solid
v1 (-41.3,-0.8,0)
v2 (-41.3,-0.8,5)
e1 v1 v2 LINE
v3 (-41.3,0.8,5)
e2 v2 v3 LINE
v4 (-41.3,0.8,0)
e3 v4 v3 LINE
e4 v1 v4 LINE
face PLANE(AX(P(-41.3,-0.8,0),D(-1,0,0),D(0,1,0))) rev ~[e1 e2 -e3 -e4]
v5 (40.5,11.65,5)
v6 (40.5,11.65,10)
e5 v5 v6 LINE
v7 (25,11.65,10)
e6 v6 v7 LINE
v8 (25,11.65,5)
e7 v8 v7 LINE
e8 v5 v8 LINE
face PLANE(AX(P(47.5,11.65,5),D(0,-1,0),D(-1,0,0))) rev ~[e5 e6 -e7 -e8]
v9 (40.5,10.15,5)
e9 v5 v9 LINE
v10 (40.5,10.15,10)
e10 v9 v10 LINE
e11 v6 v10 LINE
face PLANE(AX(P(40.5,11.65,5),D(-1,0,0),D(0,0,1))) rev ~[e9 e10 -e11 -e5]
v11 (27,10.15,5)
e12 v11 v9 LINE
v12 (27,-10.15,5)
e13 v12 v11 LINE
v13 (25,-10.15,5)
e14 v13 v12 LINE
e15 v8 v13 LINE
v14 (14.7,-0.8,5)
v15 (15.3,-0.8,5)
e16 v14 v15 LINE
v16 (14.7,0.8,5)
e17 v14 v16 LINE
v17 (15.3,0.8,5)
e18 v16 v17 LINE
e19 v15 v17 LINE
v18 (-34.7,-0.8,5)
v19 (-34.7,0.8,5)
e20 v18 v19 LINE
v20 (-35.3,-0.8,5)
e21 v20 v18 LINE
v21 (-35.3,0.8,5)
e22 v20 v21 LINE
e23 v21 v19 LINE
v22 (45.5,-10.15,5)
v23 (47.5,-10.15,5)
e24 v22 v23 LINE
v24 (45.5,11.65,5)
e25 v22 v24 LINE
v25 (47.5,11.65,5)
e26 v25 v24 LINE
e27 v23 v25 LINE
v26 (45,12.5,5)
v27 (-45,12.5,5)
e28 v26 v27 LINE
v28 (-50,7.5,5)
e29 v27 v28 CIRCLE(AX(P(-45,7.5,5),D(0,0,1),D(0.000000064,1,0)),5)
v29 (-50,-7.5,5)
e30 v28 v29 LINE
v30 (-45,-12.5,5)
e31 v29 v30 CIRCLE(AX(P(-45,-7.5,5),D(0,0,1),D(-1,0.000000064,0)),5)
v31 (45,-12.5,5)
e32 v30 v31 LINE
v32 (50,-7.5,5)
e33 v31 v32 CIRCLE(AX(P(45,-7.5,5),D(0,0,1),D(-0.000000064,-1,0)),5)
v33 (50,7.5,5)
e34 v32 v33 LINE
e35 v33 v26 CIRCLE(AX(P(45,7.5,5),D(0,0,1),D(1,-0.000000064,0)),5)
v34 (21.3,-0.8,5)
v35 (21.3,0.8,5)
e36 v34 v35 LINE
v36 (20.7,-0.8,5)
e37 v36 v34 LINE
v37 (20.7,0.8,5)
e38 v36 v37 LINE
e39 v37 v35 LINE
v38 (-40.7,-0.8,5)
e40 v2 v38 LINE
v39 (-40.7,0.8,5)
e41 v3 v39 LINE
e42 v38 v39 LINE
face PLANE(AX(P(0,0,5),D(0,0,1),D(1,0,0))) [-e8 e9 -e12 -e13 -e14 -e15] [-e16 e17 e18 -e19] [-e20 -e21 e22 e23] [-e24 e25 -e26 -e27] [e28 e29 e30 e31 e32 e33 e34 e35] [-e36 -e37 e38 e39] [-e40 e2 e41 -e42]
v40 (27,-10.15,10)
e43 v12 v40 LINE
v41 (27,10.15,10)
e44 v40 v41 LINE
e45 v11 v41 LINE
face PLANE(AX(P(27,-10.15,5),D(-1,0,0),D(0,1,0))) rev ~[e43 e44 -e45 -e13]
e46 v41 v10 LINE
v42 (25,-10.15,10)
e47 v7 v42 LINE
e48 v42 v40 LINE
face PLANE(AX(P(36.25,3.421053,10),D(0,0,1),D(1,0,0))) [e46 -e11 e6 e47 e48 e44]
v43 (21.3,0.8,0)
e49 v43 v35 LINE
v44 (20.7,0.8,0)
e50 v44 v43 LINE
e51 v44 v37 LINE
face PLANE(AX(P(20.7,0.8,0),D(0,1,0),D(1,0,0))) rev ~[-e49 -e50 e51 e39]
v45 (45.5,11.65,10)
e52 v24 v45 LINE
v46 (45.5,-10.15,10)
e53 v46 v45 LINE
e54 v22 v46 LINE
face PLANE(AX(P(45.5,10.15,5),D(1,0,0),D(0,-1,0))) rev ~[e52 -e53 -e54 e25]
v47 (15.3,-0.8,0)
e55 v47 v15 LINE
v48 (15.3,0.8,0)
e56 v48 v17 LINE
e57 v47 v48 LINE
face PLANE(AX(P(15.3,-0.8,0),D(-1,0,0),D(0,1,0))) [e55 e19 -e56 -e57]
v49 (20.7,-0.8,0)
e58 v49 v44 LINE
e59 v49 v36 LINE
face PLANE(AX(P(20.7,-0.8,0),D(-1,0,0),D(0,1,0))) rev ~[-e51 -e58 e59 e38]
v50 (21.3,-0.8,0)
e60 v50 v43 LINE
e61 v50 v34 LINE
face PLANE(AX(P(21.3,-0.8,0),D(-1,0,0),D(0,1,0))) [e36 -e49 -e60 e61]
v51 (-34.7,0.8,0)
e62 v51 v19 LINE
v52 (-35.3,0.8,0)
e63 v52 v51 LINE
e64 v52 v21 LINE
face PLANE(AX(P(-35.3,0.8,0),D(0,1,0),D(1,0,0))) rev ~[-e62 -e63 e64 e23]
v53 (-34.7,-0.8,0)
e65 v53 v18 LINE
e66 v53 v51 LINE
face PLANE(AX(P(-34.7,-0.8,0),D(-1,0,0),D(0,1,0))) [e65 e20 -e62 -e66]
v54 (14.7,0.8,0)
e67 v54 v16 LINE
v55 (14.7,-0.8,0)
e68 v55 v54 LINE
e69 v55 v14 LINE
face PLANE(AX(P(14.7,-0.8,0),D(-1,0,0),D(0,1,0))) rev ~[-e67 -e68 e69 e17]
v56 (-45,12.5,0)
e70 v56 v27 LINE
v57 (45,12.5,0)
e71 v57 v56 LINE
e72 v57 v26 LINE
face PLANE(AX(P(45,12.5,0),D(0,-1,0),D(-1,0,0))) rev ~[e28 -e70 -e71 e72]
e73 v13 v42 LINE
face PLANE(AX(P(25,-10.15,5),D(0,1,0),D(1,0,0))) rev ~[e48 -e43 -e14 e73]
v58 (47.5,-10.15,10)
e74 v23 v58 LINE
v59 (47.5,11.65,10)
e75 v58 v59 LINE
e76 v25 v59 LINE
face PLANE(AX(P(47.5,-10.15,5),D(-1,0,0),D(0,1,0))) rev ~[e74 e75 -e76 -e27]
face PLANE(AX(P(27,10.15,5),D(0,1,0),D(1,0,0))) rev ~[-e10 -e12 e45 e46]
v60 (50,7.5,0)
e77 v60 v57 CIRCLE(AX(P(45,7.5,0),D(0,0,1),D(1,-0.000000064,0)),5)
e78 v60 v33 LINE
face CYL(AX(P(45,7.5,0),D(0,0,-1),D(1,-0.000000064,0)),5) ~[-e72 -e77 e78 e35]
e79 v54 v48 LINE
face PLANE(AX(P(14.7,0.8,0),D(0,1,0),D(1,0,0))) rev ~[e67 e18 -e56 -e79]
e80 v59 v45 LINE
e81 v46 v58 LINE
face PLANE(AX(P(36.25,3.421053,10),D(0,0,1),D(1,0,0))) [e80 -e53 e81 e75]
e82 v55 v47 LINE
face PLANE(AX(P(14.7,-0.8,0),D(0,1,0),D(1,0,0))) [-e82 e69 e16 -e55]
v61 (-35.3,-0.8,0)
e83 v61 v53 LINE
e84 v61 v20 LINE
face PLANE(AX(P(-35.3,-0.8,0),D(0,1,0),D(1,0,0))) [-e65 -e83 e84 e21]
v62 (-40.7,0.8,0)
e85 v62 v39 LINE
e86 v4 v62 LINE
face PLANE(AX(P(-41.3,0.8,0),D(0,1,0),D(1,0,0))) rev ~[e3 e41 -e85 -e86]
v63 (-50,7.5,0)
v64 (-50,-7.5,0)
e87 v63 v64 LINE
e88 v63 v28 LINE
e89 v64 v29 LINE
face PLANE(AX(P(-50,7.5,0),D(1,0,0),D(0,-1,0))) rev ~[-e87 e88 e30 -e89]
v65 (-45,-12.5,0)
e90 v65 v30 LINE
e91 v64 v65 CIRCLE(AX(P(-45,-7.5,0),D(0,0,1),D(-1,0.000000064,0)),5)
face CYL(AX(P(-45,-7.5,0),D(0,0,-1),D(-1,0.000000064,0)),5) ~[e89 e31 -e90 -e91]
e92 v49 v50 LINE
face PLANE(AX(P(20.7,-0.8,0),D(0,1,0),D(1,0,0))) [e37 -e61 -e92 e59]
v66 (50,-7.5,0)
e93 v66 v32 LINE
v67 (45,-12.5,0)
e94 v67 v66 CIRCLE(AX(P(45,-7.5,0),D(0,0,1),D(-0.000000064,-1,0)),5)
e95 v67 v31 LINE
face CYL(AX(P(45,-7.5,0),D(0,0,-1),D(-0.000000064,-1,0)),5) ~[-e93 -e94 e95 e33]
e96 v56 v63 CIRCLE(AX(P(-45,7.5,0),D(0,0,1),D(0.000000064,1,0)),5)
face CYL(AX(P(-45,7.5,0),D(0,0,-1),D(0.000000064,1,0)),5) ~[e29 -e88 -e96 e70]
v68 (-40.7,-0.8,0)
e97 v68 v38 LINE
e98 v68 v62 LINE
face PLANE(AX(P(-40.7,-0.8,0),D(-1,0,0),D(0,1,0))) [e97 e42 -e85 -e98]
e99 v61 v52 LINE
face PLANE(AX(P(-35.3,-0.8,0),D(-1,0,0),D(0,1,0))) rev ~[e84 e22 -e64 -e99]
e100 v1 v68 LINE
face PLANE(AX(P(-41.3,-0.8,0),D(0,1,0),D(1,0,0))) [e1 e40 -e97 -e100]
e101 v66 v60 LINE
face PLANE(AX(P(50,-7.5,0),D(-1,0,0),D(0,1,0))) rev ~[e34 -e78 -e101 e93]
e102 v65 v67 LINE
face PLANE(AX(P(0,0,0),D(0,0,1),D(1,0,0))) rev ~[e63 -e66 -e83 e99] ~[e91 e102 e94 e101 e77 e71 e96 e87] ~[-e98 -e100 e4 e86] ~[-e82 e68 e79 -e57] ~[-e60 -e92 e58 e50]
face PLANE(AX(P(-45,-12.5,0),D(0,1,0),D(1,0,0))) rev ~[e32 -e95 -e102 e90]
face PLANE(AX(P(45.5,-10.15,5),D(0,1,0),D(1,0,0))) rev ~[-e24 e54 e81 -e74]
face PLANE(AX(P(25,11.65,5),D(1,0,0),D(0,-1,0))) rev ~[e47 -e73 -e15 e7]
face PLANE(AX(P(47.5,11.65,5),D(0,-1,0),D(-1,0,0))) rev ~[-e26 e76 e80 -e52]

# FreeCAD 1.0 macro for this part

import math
import FreeCAD as App
import Part
import Sketcher
Q = App.Units.Quantity

doc = App.newDocument("Part")
body = doc.addObject("PartDesign::Body", "Body")

sketch1 = body.newObject("Sketcher::SketchObject", "Sketch")
sketch1.AttachmentSupport = (doc.getObject("XY_Plane"), [""])
sketch1.MapMode = "FlatFace"
sketch1.addGeometry(Part.ArcOfCircle(Part.Circle(App.Vector(45, 7.5, 0), App.Vector(0, 0, 1), 5), math.radians(0), math.radians(90)), False)
sketch1.addGeometry(Part.LineSegment(App.Vector(45, 12.5, 0), App.Vector(-45, 12.5, 0)), False)
sketch1.addGeometry(Part.ArcOfCircle(Part.Circle(App.Vector(-45, 7.5, 0), App.Vector(0, 0, 1), 5), math.radians(90), math.radians(180)), False)
sketch1.addGeometry(Part.LineSegment(App.Vector(-50, 7.5, 0), App.Vector(-50, -7.5, 0)), False)
sketch1.addGeometry(Part.ArcOfCircle(Part.Circle(App.Vector(-45, -7.5, 0), App.Vector(0, 0, 1), 5), math.radians(180), math.radians(270)), False)
sketch1.addGeometry(Part.LineSegment(App.Vector(-45, -12.5, 0), App.Vector(45, -12.5, 0)), False)
sketch1.addGeometry(Part.ArcOfCircle(Part.Circle(App.Vector(45, -7.5, 0), App.Vector(0, 0, 1), 5), math.radians(-90), math.radians(0)), False)
sketch1.addGeometry(Part.LineSegment(App.Vector(50, -7.5, 0), App.Vector(50, 7.5, 0)), False)
sketch1.addGeometry(Part.LineSegment(App.Vector(-40.7, -0.8, 0), App.Vector(-41.3, -0.8, 0)), False)
sketch1.addGeometry(Part.LineSegment(App.Vector(-41.3, -0.8, 0), App.Vector(-41.3, 0.8, 0)), False)
sketch1.addGeometry(Part.LineSegment(App.Vector(-41.3, 0.8, 0), App.Vector(-40.7, 0.8, 0)), False)
sketch1.addGeometry(Part.LineSegment(App.Vector(-40.7, 0.8, 0), App.Vector(-40.7, -0.8, 0)), False)
sketch1.addGeometry(Part.LineSegment(App.Vector(-34.7, -0.8, 0), App.Vector(-35.3, -0.8, 0)), False)
sketch1.addGeometry(Part.LineSegment(App.Vector(-35.3, -0.8, 0), App.Vector(-35.3, 0.8, 0)), False)
sketch1.addGeometry(Part.LineSegment(App.Vector(-35.3, 0.8, 0), App.Vector(-34.7, 0.8, 0)), False)
sketch1.addGeometry(Part.LineSegment(App.Vector(-34.7, 0.8, 0), App.Vector(-34.7, -0.8, 0)), False)
sketch1.addGeometry(Part.LineSegment(App.Vector(15.3, -0.8, 0), App.Vector(14.7, -0.8, 0)), False)
sketch1.addGeometry(Part.LineSegment(App.Vector(14.7, -0.8, 0), App.Vector(14.7, 0.8, 0)), False)
sketch1.addGeometry(Part.LineSegment(App.Vector(14.7, 0.8, 0), App.Vector(15.3, 0.8, 0)), False)
sketch1.addGeometry(Part.LineSegment(App.Vector(15.3, 0.8, 0), App.Vector(15.3, -0.8, 0)), False)
sketch1.addGeometry(Part.LineSegment(App.Vector(21.3, -0.8, 0), App.Vector(20.7, -0.8, 0)), False)
sketch1.addGeometry(Part.LineSegment(App.Vector(20.7, -0.8, 0), App.Vector(20.7, 0.8, 0)), False)
sketch1.addGeometry(Part.LineSegment(App.Vector(20.7, 0.8, 0), App.Vector(21.3, 0.8, 0)), False)
sketch1.addGeometry(Part.LineSegment(App.Vector(21.3, 0.8, 0), App.Vector(21.3, -0.8, 0)), False)
sketch1.addConstraint(Sketcher.Constraint("Tangent", 0, 2, 1, 1))
sketch1.addConstraint(Sketcher.Constraint("Tangent", 1, 2, 2, 1))
sketch1.addConstraint(Sketcher.Constraint("Tangent", 2, 2, 3, 1))
sketch1.addConstraint(Sketcher.Constraint("Tangent", 3, 2, 4, 1))
sketch1.addConstraint(Sketcher.Constraint("Tangent", 4, 2, 5, 1))
sketch1.addConstraint(Sketcher.Constraint("Tangent", 5, 2, 6, 1))
sketch1.addConstraint(Sketcher.Constraint("Tangent", 6, 2, 7, 1))
sketch1.addConstraint(Sketcher.Constraint("Tangent", 7, 2, 0, 1))
sketch1.addConstraint(Sketcher.Constraint("Coincident", 8, 2, 9, 1))
sketch1.addConstraint(Sketcher.Constraint("Coincident", 9, 2, 10, 1))
sketch1.addConstraint(Sketcher.Constraint("Coincident", 10, 2, 11, 1))
sketch1.addConstraint(Sketcher.Constraint("Coincident", 11, 2, 8, 1))
sketch1.addConstraint(Sketcher.Constraint("Coincident", 12, 2, 13, 1))
sketch1.addConstraint(Sketcher.Constraint("Coincident", 13, 2, 14, 1))
sketch1.addConstraint(Sketcher.Constraint("Coincident", 14, 2, 15, 1))
sketch1.addConstraint(Sketcher.Constraint("Coincident", 15, 2, 12, 1))
sketch1.addConstraint(Sketcher.Constraint("Coincident", 16, 2, 17, 1))
sketch1.addConstraint(Sketcher.Constraint("Coincident", 17, 2, 18, 1))
sketch1.addConstraint(Sketcher.Constraint("Coincident", 18, 2, 19, 1))
sketch1.addConstraint(Sketcher.Constraint("Coincident", 19, 2, 16, 1))
sketch1.addConstraint(Sketcher.Constraint("Coincident", 20, 2, 21, 1))
sketch1.addConstraint(Sketcher.Constraint("Coincident", 21, 2, 22, 1))
sketch1.addConstraint(Sketcher.Constraint("Coincident", 22, 2, 23, 1))
sketch1.addConstraint(Sketcher.Constraint("Coincident", 23, 2, 20, 1))
sketch1.addConstraint(Sketcher.Constraint("Horizontal", 1))
sketch1.addConstraint(Sketcher.Constraint("Vertical", 3))
sketch1.addConstraint(Sketcher.Constraint("Horizontal", 5))
sketch1.addConstraint(Sketcher.Constraint("Vertical", 7))
sketch1.addConstraint(Sketcher.Constraint("Horizontal", 8))
sketch1.addConstraint(Sketcher.Constraint("Vertical", 9))
sketch1.addConstraint(Sketcher.Constraint("Horizontal", 10))
sketch1.addConstraint(Sketcher.Constraint("Vertical", 11))
sketch1.addConstraint(Sketcher.Constraint("Horizontal", 12))
sketch1.addConstraint(Sketcher.Constraint("Vertical", 13))
sketch1.addConstraint(Sketcher.Constraint("Horizontal", 14))
sketch1.addConstraint(Sketcher.Constraint("Vertical", 15))
sketch1.addConstraint(Sketcher.Constraint("Horizontal", 16))
sketch1.addConstraint(Sketcher.Constraint("Vertical", 17))
sketch1.addConstraint(Sketcher.Constraint("Horizontal", 18))
sketch1.addConstraint(Sketcher.Constraint("Vertical", 19))
sketch1.addConstraint(Sketcher.Constraint("Horizontal", 20))
sketch1.addConstraint(Sketcher.Constraint("Vertical", 21))
sketch1.addConstraint(Sketcher.Constraint("Horizontal", 22))
sketch1.addConstraint(Sketcher.Constraint("Vertical", 23))
sketch1.addConstraint(Sketcher.Constraint("Equal", 0, 2))
sketch1.addConstraint(Sketcher.Constraint("Equal", 2, 4))
sketch1.addConstraint(Sketcher.Constraint("Equal", 4, 6))
sketch1.addConstraint(Sketcher.Constraint("Symmetric", 0, 3, 4, 3, -1, 1))
sketch1.addConstraint(Sketcher.Constraint("Horizontal", 11, 2, 12, 2))
sketch1.addConstraint(Sketcher.Constraint("Horizontal", 10, 2, 13, 2))
sketch1.addConstraint(Sketcher.Constraint("Horizontal", 15, 2, 16, 2))
sketch1.addConstraint(Sketcher.Constraint("Horizontal", 14, 2, 17, 2))
sketch1.addConstraint(Sketcher.Constraint("Horizontal", 19, 2, 20, 2))
sketch1.addConstraint(Sketcher.Constraint("Horizontal", 18, 2, 21, 2))
sketch1.addConstraint(Sketcher.Constraint("Equal", 10, 12))
sketch1.addConstraint(Sketcher.Constraint("Equal", 14, 16))
sketch1.addConstraint(Sketcher.Constraint("Equal", 18, 20))
sketch1.addConstraint(Sketcher.Constraint("Radius", 0, Q("5 mm")))
sketch1.addConstraint(Sketcher.Constraint("DistanceX", 1, 2, 1, 1, Q("90 mm")))
sketch1.addConstraint(Sketcher.Constraint("DistanceY", 3, 2, 3, 1, Q("15 mm")))
sketch1.addConstraint(Sketcher.Constraint("DistanceX", 8, 2, 8, 1, Q("0.6 mm")))
sketch1.addConstraint(Sketcher.Constraint("DistanceY", 9, 1, 9, 2, Q("1.6 mm")))
sketch1.addConstraint(Sketcher.Constraint("DistanceX", 8, 2, 12, 2, Q("6 mm")))
sketch1.addConstraint(Sketcher.Constraint("DistanceX", 16, 2, 20, 2, Q("6 mm")))
sketch1.addConstraint(Sketcher.Constraint("DistanceX", 8, 2, -1, 1, Q("41.3 mm")))
sketch1.addConstraint(Sketcher.Constraint("DistanceY", 8, 2, -1, 1, Q("0.8 mm")))
sketch1.addConstraint(Sketcher.Constraint("DistanceX", -1, 1, 16, 2, Q("14.7 mm")))
pad1 = body.newObject("PartDesign::Pad", "Pad")
pad1.Profile = sketch1
pad1.Length = 5

sketch2 = body.newObject("Sketcher::SketchObject", "Sketch001")
sketch2.AttachmentSupport = (doc.getObject("XY_Plane"), [""])
sketch2.MapMode = "FlatFace"
sketch2.AttachmentOffset = App.Placement(App.Vector(0, 0, 5), App.Rotation())
sketch2.addGeometry(Part.LineSegment(App.Vector(25, -10.2, 0), App.Vector(27, -10.2, 0)), False)
sketch2.addGeometry(Part.LineSegment(App.Vector(27, -10.2, 0), App.Vector(27, 10.2, 0)), False)
sketch2.addGeometry(Part.LineSegment(App.Vector(27, 10.2, 0), App.Vector(45.5, 10.2, 0)), False)
sketch2.addGeometry(Part.LineSegment(App.Vector(45.5, 10.2, 0), App.Vector(45.5, -10.2, 0)), False)
sketch2.addGeometry(Part.LineSegment(App.Vector(45.5, -10.2, 0), App.Vector(47.5, -10.2, 0)), False)
sketch2.addGeometry(Part.LineSegment(App.Vector(47.5, -10.2, 0), App.Vector(47.5, 11.7, 0)), False)
sketch2.addGeometry(Part.LineSegment(App.Vector(47.5, 11.7, 0), App.Vector(25, 11.7, 0)), False)
sketch2.addGeometry(Part.LineSegment(App.Vector(25, 11.7, 0), App.Vector(25, -10.2, 0)), False)
sketch2.addConstraint(Sketcher.Constraint("Coincident", 0, 2, 1, 1))
sketch2.addConstraint(Sketcher.Constraint("Coincident", 1, 2, 2, 1))
sketch2.addConstraint(Sketcher.Constraint("Coincident", 2, 2, 3, 1))
sketch2.addConstraint(Sketcher.Constraint("Coincident", 3, 2, 4, 1))
sketch2.addConstraint(Sketcher.Constraint("Coincident", 4, 2, 5, 1))
sketch2.addConstraint(Sketcher.Constraint("Coincident", 5, 2, 6, 1))
sketch2.addConstraint(Sketcher.Constraint("Coincident", 6, 2, 7, 1))
sketch2.addConstraint(Sketcher.Constraint("Coincident", 7, 2, 0, 1))
sketch2.addConstraint(Sketcher.Constraint("Horizontal", 0))
sketch2.addConstraint(Sketcher.Constraint("Vertical", 1))
sketch2.addConstraint(Sketcher.Constraint("Horizontal", 2))
sketch2.addConstraint(Sketcher.Constraint("Vertical", 3))
sketch2.addConstraint(Sketcher.Constraint("Horizontal", 4))
sketch2.addConstraint(Sketcher.Constraint("Vertical", 5))
sketch2.addConstraint(Sketcher.Constraint("Horizontal", 6))
sketch2.addConstraint(Sketcher.Constraint("Vertical", 7))
sketch2.addConstraint(Sketcher.Constraint("Horizontal", 0, 2, 3, 2))
sketch2.addConstraint(Sketcher.Constraint("Equal", 0, 4))
sketch2.addConstraint(Sketcher.Constraint("DistanceX", 0, 1, 0, 2, Q("2 mm")))
sketch2.addConstraint(Sketcher.Constraint("DistanceX", 2, 1, 2, 2, Q("18.5 mm")))
sketch2.addConstraint(Sketcher.Constraint("DistanceY", 1, 1, 1, 2, Q("20.3 mm")))
sketch2.addConstraint(Sketcher.Constraint("DistanceY", 5, 1, 5, 2, Q("21.8 mm")))
sketch2.addConstraint(Sketcher.Constraint("DistanceX", -1, 1, 0, 2, Q("27 mm")))
sketch2.addConstraint(Sketcher.Constraint("DistanceY", 0, 2, -1, 1, Q("10.15 mm")))
pad2 = body.newObject("PartDesign::Pad", "Pad001")
pad2.Profile = sketch2
pad2.Length = 5

sketch3 = body.newObject("Sketcher::SketchObject", "Sketch002")
sketch3.AttachmentSupport = (doc.getObject("XZ_Plane"), [""])
sketch3.MapMode = "FlatFace"
sketch3.AttachmentOffset = App.Placement(App.Vector(0, 0, -11.65), App.Rotation())
sketch3.addGeometry(Part.LineSegment(App.Vector(46, 10, 0), App.Vector(46, 5, 0)), False)
sketch3.addGeometry(Part.LineSegment(App.Vector(46, 5, 0), App.Vector(40, 5, 0)), False)
sketch3.addGeometry(Part.LineSegment(App.Vector(40, 5, 0), App.Vector(40, 10, 0)), False)
sketch3.addGeometry(Part.LineSegment(App.Vector(40, 10, 0), App.Vector(46, 10, 0)), False)
sketch3.addConstraint(Sketcher.Constraint("Coincident", 0, 2, 1, 1))
sketch3.addConstraint(Sketcher.Constraint("Coincident", 1, 2, 2, 1))
sketch3.addConstraint(Sketcher.Constraint("Coincident", 2, 2, 3, 1))
sketch3.addConstraint(Sketcher.Constraint("Coincident", 3, 2, 0, 1))
sketch3.addConstraint(Sketcher.Constraint("Vertical", 0))
sketch3.addConstraint(Sketcher.Constraint("Horizontal", 1))
sketch3.addConstraint(Sketcher.Constraint("Vertical", 2))
sketch3.addConstraint(Sketcher.Constraint("Horizontal", 3))
sketch3.addConstraint(Sketcher.Constraint("Equal", 3, 0))
sketch3.addConstraint(Sketcher.Constraint("DistanceX", 1, 2, 1, 1, Q("5 mm")))
sketch3.addConstraint(Sketcher.Constraint("DistanceY", -1, 1, 0, 2, Q("5 mm")))
sketch3.addConstraint(Sketcher.Constraint("DistanceX", -1, 1, 0, 2, Q("45.5 mm")))
pocket1 = body.newObject("PartDesign::Pocket", "Pocket")
pocket1.Profile = sketch3
pocket1.Length = 25
pocket1.Reversed = True

doc.recompute()
